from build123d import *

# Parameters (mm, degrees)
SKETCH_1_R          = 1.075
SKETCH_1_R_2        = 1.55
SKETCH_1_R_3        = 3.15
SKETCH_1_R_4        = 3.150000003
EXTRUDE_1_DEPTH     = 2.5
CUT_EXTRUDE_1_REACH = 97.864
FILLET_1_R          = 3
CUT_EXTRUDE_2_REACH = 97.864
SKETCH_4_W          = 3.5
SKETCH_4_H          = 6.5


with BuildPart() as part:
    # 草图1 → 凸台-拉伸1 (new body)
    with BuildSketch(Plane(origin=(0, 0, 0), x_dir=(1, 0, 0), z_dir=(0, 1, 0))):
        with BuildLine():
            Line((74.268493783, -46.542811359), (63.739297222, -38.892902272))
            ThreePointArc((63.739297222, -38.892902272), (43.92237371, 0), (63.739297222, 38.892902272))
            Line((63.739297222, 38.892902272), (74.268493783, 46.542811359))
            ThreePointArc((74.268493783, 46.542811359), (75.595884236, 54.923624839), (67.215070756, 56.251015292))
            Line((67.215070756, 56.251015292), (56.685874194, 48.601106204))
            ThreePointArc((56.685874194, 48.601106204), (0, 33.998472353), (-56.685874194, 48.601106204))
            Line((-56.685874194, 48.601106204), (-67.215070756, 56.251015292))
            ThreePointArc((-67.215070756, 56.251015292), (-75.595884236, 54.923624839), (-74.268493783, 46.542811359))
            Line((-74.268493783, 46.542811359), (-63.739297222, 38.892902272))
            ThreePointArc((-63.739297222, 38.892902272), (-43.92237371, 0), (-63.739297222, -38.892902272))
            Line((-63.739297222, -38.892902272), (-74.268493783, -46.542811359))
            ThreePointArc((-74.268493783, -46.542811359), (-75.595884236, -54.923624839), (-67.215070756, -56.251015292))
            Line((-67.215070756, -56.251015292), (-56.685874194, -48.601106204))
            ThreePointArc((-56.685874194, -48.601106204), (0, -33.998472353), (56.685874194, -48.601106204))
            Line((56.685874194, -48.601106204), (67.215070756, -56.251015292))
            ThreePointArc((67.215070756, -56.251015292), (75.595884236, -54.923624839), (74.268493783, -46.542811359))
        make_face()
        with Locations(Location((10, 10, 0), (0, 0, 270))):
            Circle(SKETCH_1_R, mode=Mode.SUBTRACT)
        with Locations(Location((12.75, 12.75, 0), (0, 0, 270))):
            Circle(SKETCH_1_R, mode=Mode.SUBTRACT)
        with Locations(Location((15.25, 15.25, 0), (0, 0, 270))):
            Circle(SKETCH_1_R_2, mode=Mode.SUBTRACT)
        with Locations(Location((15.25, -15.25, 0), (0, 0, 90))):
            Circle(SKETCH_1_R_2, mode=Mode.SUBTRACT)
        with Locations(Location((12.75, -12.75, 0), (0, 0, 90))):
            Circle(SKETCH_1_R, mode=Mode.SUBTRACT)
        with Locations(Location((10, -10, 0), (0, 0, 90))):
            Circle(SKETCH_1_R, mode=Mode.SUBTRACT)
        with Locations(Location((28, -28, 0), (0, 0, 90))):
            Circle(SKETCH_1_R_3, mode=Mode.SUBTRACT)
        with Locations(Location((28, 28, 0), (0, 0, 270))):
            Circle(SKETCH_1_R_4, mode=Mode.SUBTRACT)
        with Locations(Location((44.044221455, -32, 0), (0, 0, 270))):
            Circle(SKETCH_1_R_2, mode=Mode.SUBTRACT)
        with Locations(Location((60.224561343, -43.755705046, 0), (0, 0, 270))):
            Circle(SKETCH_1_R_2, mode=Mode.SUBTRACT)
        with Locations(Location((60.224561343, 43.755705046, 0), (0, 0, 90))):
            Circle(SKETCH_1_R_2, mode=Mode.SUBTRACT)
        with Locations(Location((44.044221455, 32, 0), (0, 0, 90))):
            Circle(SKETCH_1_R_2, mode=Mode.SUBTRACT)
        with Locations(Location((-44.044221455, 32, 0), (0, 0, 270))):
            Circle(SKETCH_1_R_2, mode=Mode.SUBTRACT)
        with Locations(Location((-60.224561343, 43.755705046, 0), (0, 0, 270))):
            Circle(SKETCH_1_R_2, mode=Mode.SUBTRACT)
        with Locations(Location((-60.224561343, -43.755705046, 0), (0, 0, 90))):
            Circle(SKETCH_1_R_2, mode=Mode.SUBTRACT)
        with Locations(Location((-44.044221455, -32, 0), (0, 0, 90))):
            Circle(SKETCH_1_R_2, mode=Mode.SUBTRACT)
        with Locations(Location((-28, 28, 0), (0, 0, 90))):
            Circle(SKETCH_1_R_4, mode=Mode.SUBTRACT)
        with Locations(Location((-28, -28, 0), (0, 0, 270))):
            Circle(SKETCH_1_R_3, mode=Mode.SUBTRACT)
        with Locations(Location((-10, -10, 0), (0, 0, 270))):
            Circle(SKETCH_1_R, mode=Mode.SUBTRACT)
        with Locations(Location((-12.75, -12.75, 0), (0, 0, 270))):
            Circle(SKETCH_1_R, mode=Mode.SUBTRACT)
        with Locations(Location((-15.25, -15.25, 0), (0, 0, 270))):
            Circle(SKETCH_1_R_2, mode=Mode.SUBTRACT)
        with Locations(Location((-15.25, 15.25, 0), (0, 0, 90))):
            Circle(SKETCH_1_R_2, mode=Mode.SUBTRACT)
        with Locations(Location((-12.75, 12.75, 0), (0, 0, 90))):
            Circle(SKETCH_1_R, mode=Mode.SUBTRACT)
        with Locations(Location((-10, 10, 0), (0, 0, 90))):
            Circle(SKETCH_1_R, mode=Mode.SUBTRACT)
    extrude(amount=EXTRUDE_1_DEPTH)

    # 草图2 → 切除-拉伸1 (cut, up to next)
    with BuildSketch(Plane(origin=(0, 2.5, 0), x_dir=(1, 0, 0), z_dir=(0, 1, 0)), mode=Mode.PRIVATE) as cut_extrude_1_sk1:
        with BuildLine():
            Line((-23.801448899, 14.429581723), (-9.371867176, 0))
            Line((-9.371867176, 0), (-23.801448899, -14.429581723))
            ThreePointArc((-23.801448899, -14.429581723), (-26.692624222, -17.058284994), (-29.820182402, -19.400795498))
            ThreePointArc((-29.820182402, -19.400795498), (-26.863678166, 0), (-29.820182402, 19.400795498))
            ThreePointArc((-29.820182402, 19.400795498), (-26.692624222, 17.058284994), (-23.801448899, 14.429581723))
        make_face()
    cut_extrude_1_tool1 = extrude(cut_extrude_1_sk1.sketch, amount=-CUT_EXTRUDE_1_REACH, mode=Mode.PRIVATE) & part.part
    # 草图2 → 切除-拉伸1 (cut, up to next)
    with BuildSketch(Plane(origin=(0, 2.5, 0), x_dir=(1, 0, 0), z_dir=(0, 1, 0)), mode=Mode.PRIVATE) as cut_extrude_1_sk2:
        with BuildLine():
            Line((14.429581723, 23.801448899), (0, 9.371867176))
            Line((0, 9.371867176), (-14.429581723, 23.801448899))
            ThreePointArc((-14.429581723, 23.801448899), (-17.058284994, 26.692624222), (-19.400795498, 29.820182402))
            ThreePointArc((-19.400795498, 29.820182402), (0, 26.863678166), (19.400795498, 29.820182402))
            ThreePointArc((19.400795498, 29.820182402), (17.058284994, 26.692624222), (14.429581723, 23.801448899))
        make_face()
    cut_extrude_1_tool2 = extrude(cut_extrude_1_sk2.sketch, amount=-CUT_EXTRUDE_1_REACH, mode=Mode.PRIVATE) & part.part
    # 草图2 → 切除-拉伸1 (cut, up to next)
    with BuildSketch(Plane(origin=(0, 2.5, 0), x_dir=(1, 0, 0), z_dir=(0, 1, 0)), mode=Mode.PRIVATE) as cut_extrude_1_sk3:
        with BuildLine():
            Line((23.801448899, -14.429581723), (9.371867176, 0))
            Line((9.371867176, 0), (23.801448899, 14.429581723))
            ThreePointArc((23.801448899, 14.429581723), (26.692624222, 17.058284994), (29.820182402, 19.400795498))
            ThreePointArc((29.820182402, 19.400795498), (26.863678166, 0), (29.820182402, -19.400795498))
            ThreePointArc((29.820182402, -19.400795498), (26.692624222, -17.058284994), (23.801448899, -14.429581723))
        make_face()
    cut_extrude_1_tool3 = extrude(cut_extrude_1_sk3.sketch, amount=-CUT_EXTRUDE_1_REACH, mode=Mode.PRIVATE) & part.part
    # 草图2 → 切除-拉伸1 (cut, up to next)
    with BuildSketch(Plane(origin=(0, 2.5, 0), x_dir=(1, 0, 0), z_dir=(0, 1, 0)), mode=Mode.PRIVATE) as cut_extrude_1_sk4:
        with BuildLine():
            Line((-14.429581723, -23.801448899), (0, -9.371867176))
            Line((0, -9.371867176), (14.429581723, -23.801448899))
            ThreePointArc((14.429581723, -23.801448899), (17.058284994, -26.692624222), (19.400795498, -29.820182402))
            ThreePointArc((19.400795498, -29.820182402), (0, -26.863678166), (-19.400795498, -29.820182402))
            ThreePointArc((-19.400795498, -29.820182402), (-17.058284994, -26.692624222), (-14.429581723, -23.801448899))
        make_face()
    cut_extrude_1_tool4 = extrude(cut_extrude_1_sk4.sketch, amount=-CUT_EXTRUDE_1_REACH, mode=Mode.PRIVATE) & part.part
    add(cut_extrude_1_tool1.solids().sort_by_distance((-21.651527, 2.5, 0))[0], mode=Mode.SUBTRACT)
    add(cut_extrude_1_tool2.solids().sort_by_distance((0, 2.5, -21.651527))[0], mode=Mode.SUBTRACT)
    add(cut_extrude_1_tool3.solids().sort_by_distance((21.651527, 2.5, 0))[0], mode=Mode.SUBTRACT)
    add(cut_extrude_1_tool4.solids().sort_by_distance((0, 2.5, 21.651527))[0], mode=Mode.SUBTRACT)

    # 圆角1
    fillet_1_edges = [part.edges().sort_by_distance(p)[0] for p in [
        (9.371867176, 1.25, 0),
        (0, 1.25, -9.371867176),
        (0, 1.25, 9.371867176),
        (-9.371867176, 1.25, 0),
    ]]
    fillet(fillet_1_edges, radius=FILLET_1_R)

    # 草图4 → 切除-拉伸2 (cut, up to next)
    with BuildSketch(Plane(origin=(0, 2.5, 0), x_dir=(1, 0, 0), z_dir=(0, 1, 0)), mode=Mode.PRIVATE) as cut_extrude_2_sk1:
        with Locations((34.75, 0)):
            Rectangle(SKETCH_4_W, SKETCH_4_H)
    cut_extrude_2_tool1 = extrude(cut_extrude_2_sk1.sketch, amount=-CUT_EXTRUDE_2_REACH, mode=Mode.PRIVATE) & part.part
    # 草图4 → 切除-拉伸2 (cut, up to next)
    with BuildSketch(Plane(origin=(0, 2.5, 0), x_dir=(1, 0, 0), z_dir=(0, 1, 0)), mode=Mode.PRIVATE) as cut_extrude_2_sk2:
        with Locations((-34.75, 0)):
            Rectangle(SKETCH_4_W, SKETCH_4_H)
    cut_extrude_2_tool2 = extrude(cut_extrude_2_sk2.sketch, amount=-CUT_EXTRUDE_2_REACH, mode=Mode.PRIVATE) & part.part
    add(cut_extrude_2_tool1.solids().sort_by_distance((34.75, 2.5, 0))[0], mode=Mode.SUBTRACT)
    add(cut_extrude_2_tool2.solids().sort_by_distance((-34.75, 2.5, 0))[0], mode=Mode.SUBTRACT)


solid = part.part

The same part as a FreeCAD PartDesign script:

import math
import FreeCAD as App
import Part
import Sketcher

V = App.Vector
Q = App.Units.Quantity


def edges_at(feature, points):
    """Names of the edges that pass closest to the given points."""
    edges = feature.Shape.Edges
    near = lambda p: min(range(len(edges)), key=lambda i: edges[i].distToShape(Part.Vertex(*p))[0])
    return sorted({f"Edge{near(p) + 1}" for p in points})


def add_polygon(sketch, points):
    """Adds a closed chain of lines whose ends are joined by coincident constraints."""
    first, n = sketch.GeometryCount, len(points)
    for a, b in zip(points, points[1:] + points[:1]):
        sketch.addGeometry(Part.LineSegment(App.Vector(*a, 0), App.Vector(*b, 0)), False)
    for i in range(n):
        sketch.addConstraint(Sketcher.Constraint("Coincident", first + i, 2, first + (i + 1) % n, 1))

doc = App.newDocument("Part")
body = doc.addObject("PartDesign::Body", "Body")

# Sketch on XZ plane
sketch1 = body.newObject("Sketcher::SketchObject", "Sketch")
sketch1.AttachmentSupport = (doc.getObject("XZ_Plane"), [""])
sketch1.MapMode = "FlatFace"
sketch1.addGeometry(Part.LineSegment(V(74.3, 46.5, 0), V(63.7, 38.9, 0)), False)
sketch1.addGeometry(Part.ArcOfCircle(Part.Circle(V(92, 0, 0), V(0, 0, 1), 48.1), math.radians(126), math.radians(234)), False)
sketch1.addGeometry(Part.LineSegment(V(63.7, -38.9, 0), V(74.3, -46.5, 0)), False)
sketch1.addGeometry(Part.ArcOfCircle(Part.Circle(V(70.7, -51.4, 0), V(0, 0, 1), 6), math.radians(-126), math.radians(54)), False)
sketch1.addGeometry(Part.LineSegment(V(67.2, -56.3, 0), V(56.7, -48.6, 0)), False)
sketch1.addGeometry(Part.ArcOfCircle(Part.Circle(V(0, -151.3, 0), V(0, 0, 1), 117.3), math.radians(61), math.radians(119)), False)
sketch1.addGeometry(Part.LineSegment(V(-56.7, -48.6, 0), V(-67.2, -56.3, 0)), False)
sketch1.addGeometry(Part.ArcOfCircle(Part.Circle(V(-70.7, -51.4, 0), V(0, 0, 1), 6), math.radians(126), math.radians(306)), False)
sketch1.addGeometry(Part.LineSegment(V(-74.3, -46.5, 0), V(-63.7, -38.9, 0)), False)
sketch1.addGeometry(Part.ArcOfCircle(Part.Circle(V(-92, 0, 0), V(0, 0, 1), 48.1), math.radians(-54), math.radians(54)), False)
sketch1.addGeometry(Part.LineSegment(V(-63.7, 38.9, 0), V(-74.3, 46.5, 0)), False)
sketch1.addGeometry(Part.ArcOfCircle(Part.Circle(V(-70.7, 51.4, 0), V(0, 0, 1), 6), math.radians(54), math.radians(234)), False)
sketch1.addGeometry(Part.LineSegment(V(-67.2, 56.3, 0), V(-56.7, 48.6, 0)), False)
sketch1.addGeometry(Part.ArcOfCircle(Part.Circle(V(0, 151.3, 0), V(0, 0, 1), 117.3), math.radians(-119), math.radians(-61)), False)
sketch1.addGeometry(Part.LineSegment(V(56.7, 48.6, 0), V(67.2, 56.3, 0)), False)
sketch1.addGeometry(Part.ArcOfCircle(Part.Circle(V(70.7, 51.4, 0), V(0, 0, 1), 6), math.radians(-54), math.radians(126)), False)
sketch1.addGeometry(Part.Circle(V(-60.2, 43.8, 0), V(0, 0, 1), 1.6), False)
sketch1.addGeometry(Part.Circle(V(-44, 32, 0), V(0, 0, 1), 1.6), False)
sketch1.addGeometry(Part.Circle(V(-28, 28, 0), V(0, 0, 1), 3.1), False)
sketch1.addGeometry(Part.Circle(V(-15.2, 15.2, 0), V(0, 0, 1), 1.6), False)
sketch1.addGeometry(Part.Circle(V(-12.8, 12.8, 0), V(0, 0, 1), 1.1), False)
sketch1.addGeometry(Part.Circle(V(-10, 10, 0), V(0, 0, 1), 1.1), False)
sketch1.addGeometry(Part.Circle(V(28, 28, 0), V(0, 0, 1), 3.1), False)
sketch1.addGeometry(Part.Circle(V(60.2, 43.8, 0), V(0, 0, 1), 1.6), False)
sketch1.addGeometry(Part.Circle(V(44, 32, 0), V(0, 0, 1), 1.6), False)
sketch1.addGeometry(Part.Circle(V(15.2, 15.2, 0), V(0, 0, 1), 1.6), False)
sketch1.addGeometry(Part.Circle(V(12.8, 12.8, 0), V(0, 0, 1), 1.1), False)
sketch1.addGeometry(Part.Circle(V(10, 10, 0), V(0, 0, 1), 1.1), False)
sketch1.addGeometry(Part.Circle(V(-10, -10, 0), V(0, 0, 1), 1.1), False)
sketch1.addGeometry(Part.Circle(V(-12.8, -12.8, 0), V(0, 0, 1), 1.1), False)
sketch1.addGeometry(Part.Circle(V(-15.2, -15.2, 0), V(0, 0, 1), 1.6), False)
sketch1.addGeometry(Part.Circle(V(-44, -32, 0), V(0, 0, 1), 1.6), False)
sketch1.addGeometry(Part.Circle(V(-60.2, -43.8, 0), V(0, 0, 1), 1.6), False)
sketch1.addGeometry(Part.Circle(V(-28, -28, 0), V(0, 0, 1), 3.2), False)
sketch1.addGeometry(Part.Circle(V(10, -10, 0), V(0, 0, 1), 1.1), False)
sketch1.addGeometry(Part.Circle(V(12.8, -12.8, 0), V(0, 0, 1), 1.1), False)
sketch1.addGeometry(Part.Circle(V(15.2, -15.2, 0), V(0, 0, 1), 1.6), False)
sketch1.addGeometry(Part.Circle(V(28, -28, 0), V(0, 0, 1), 3.2), False)
sketch1.addGeometry(Part.Circle(V(44, -32, 0), V(0, 0, 1), 1.6), False)
sketch1.addGeometry(Part.Circle(V(60.2, -43.8, 0), V(0, 0, 1), 1.6), False)
sketch1.addConstraint(Sketcher.Constraint("Tangent", 0, 2, 1, 1))
sketch1.addConstraint(Sketcher.Constraint("Tangent", 1, 2, 2, 1))
sketch1.addConstraint(Sketcher.Constraint("Tangent", 2, 2, 3, 2))
sketch1.addConstraint(Sketcher.Constraint("Tangent", 3, 1, 4, 1))
sketch1.addConstraint(Sketcher.Constraint("Coincident", 4, 2, 5, 1))
sketch1.addConstraint(Sketcher.Constraint("Coincident", 5, 2, 6, 1))
sketch1.addConstraint(Sketcher.Constraint("Tangent", 6, 2, 7, 2))
sketch1.addConstraint(Sketcher.Constraint("Tangent", 7, 1, 8, 1))
sketch1.addConstraint(Sketcher.Constraint("Tangent", 8, 2, 9, 1))
sketch1.addConstraint(Sketcher.Constraint("Tangent", 9, 2, 10, 1))
sketch1.addConstraint(Sketcher.Constraint("Tangent", 10, 2, 11, 2))
sketch1.addConstraint(Sketcher.Constraint("Tangent", 11, 1, 12, 1))
sketch1.addConstraint(Sketcher.Constraint("Coincident", 12, 2, 13, 1))
sketch1.addConstraint(Sketcher.Constraint("Coincident", 13, 2, 14, 1))
sketch1.addConstraint(Sketcher.Constraint("Tangent", 14, 2, 15, 2))
sketch1.addConstraint(Sketcher.Constraint("Tangent", 15, 1, 0, 1))
sketch1.addConstraint(Sketcher.Constraint("Equal", 3, 7))
sketch1.addConstraint(Sketcher.Constraint("Equal", 1, 9))
sketch1.addConstraint(Sketcher.Constraint("Equal", 7, 11))
sketch1.addConstraint(Sketcher.Constraint("Equal", 5, 13))
sketch1.addConstraint(Sketcher.Constraint("Equal", 11, 15))
sketch1.addConstraint(Sketcher.Constraint("Equal", 16, 17))
sketch1.addConstraint(Sketcher.Constraint("Equal", 17, 19))
sketch1.addConstraint(Sketcher.Constraint("Equal", 20, 21))
sketch1.addConstraint(Sketcher.Constraint("Equal", 18, 22))
sketch1.addConstraint(Sketcher.Constraint("Equal", 19, 23))
sketch1.addConstraint(Sketcher.Constraint("Equal", 23, 24))
sketch1.addConstraint(Sketcher.Constraint("Equal", 24, 25))
sketch1.addConstraint(Sketcher.Constraint("Equal", 21, 26))
sketch1.addConstraint(Sketcher.Constraint("Equal", 26, 27))
sketch1.addConstraint(Sketcher.Constraint("Equal", 27, 28))
sketch1.addConstraint(Sketcher.Constraint("Equal", 28, 29))
sketch1.addConstraint(Sketcher.Constraint("Equal", 25, 30))
sketch1.addConstraint(Sketcher.Constraint("Equal", 30, 31))
sketch1.addConstraint(Sketcher.Constraint("Equal", 31, 32))
sketch1.addConstraint(Sketcher.Constraint("Equal", 22, 33))
sketch1.addConstraint(Sketcher.Constraint("Equal", 29, 34))
sketch1.addConstraint(Sketcher.Constraint("Equal", 34, 35))
sketch1.addConstraint(Sketcher.Constraint("Equal", 32, 36))
sketch1.addConstraint(Sketcher.Constraint("Equal", 33, 37))
sketch1.addConstraint(Sketcher.Constraint("Equal", 36, 38))
sketch1.addConstraint(Sketcher.Constraint("Equal", 38, 39))
sketch1.addConstraint(Sketcher.Constraint("Symmetric", 1, 3, 9, 3, -1, 1))
sketch1.addConstraint(Sketcher.Constraint("Symmetric", 3, 3, 11, 3, -1, 1))
sketch1.addConstraint(Sketcher.Constraint("Symmetric", 5, 3, 13, 3, -1, 1))
sketch1.addConstraint(Sketcher.Constraint("Symmetric", 7, 3, 15, 3, -1, 1))
sketch1.addConstraint(Sketcher.Constraint("Symmetric", 27, 3, 28, 3, -1, 1))
sketch1.addConstraint(Sketcher.Constraint("Symmetric", 26, 3, 29, 3, -1, 1))
sketch1.addConstraint(Sketcher.Constraint("Symmetric", 25, 3, 30, 3, -1, 1))
sketch1.addConstraint(Sketcher.Constraint("Symmetric", 24, 3, 31, 3, -1, 1))
sketch1.addConstraint(Sketcher.Constraint("Symmetric", 23, 3, 32, 3, -1, 1))
sketch1.addConstraint(Sketcher.Constraint("Symmetric", 22, 3, 33, 3, -1, 1))
sketch1.addConstraint(Sketcher.Constraint("Symmetric", 21, 3, 34, 3, -1, 1))
sketch1.addConstraint(Sketcher.Constraint("Symmetric", 20, 3, 35, 3, -1, 1))
sketch1.addConstraint(Sketcher.Constraint("Symmetric", 19, 3, 36, 3, -1, 1))
sketch1.addConstraint(Sketcher.Constraint("Symmetric", 18, 3, 37, 3, -1, 1))
sketch1.addConstraint(Sketcher.Constraint("Symmetric", 17, 3, 38, 3, -1, 1))
sketch1.addConstraint(Sketcher.Constraint("Symmetric", 16, 3, 39, 3, -1, 1))
sketch1.addConstraint(Sketcher.Constraint("Symmetric", 3, 3, 7, 3, -2))
sketch1.addConstraint(Sketcher.Constraint("Symmetric", 18, 3, 22, 3, -2))
sketch1.addConstraint(Sketcher.Constraint("Symmetric", 16, 3, 23, 3, -2))
sketch1.addConstraint(Sketcher.Constraint("Symmetric", 17, 3, 24, 3, -2))
sketch1.addConstraint(Sketcher.Constraint("Symmetric", 19, 3, 25, 3, -2))
sketch1.addConstraint(Sketcher.Constraint("Symmetric", 20, 3, 26, 3, -2))
sketch1.addConstraint(Sketcher.Constraint("Symmetric", 21, 3, 27, 3, -2))
sketch1.addConstraint(Sketcher.Constraint("Symmetric", 4, 2, 5, 2, -2))
sketch1.addConstraint(Sketcher.Constraint("PointOnObject", 1, 3, -1))
sketch1.addConstraint(Sketcher.Constraint("Parallel", 2, 4))
sketch1.addConstraint(Sketcher.Constraint("Parallel", 10, 12))
sketch1.addConstraint(Sketcher.Constraint("Parallel", 8, 14))
sketch1.addConstraint(Sketcher.Constraint("Equal", 2, 4))
sketch1.addConstraint(Sketcher.Constraint("Radius", 3, Q("6 mm")))
sketch1.addConstraint(Sketcher.Constraint("Diameter", 16, Q("3.1 mm")))
sketch1.addConstraint(Sketcher.Constraint("Diameter", 18, Q("6.3 mm")))
sketch1.addConstraint(Sketcher.Constraint("Diameter", 20, Q("2.15 mm")))
sketch1.addConstraint(Sketcher.Constraint("Angle", 0, Q("-144 deg")))
sketch1.addConstraint(Sketcher.Constraint("DistanceY", -1, 1, 17, 3, Q("32 mm")))
sketch1.addConstraint(Sketcher.Constraint("DistanceX", 18, 3, -1, 1, Q("28 mm")))
sketch1.addConstraint(Sketcher.Constraint("DistanceY", -1, 1, 18, 3, Q("28 mm")))
sketch1.addConstraint(Sketcher.Constraint("DistanceX", 21, 3, -1, 1, Q("10 mm")))
sketch1.addConstraint(Sketcher.Constraint("DistanceY", -1, 1, 21, 3, Q("10 mm")))
sketch1.addConstraint(Sketcher.Constraint("DistanceX", 20, 3, 25, 3, Q("28 mm")))
sketch1.addConstraint(Sketcher.Constraint("DistanceY", 29, 3, 19, 3, Q("28 mm")))
sketch1.addConstraint(Sketcher.Constraint("DistanceX", 19, 3, 20, 3, Q("2.5 mm")))
sketch1.addConstraint(Sketcher.Constraint("DistanceY", 20, 3, 19, 3, Q("2.5 mm")))
sketch1.addConstraint(Sketcher.Constraint("Radius", 1, Q("48.074271 mm")))
sketch1.addConstraint(Sketcher.Constraint("Radius", 5, Q("117.325589 mm")))
sketch1.addConstraint(Sketcher.Constraint("DistanceY", 4, 2, 39, 3, Q("4.845401 mm")))
sketch1.addConstraint(Sketcher.Constraint("DistanceY", 5, 3, -1, 1, Q("151.324062 mm")))
sketch1.addConstraint(Sketcher.Constraint("DistanceX", 16, 3, -1, 1, Q("60.224561 mm")))
sketch1.addConstraint(Sketcher.Constraint("DistanceX", 17, 3, -1, 1, Q("44.044221 mm")))
sketch1.addConstraint(Sketcher.Constraint("DistanceY", 2, 2, -1, 1, Q("46.542811 mm")))
pad1 = body.newObject("PartDesign::Pad", "Pad")
pad1.Profile = sketch1
pad1.Length = 2.5
pad1.Reversed = True

# Sketch on XZ plane
sketch2 = body.newObject("Sketcher::SketchObject", "Sketch001")
sketch2.AttachmentSupport = (doc.getObject("XZ_Plane"), [""])
sketch2.MapMode = "FlatFace"
sketch2.AttachmentOffset = App.Placement(V(0, 0, -2.5), App.Rotation())
sketch2.addGeometry(Part.LineSegment(V(-9, 0, 0), V(-24, -14, 0)), False)
sketch2.addGeometry(Part.ArcOfCircle(Part.Circle(V(-53, 15, 0), V(0, 0, 1), 41), math.radians(-55.89), math.radians(-45)), False)
sketch2.addGeometry(Part.ArcOfCircle(Part.Circle(V(-92, 0, 0), V(0, 0, 1), 65), math.radians(-17), math.radians(17)), False)
sketch2.addGeometry(Part.ArcOfCircle(Part.Circle(V(-53, -15, 0), V(0, 0, 1), 41), math.radians(45), math.radians(55.89)), False)
sketch2.addGeometry(Part.LineSegment(V(-24, 14, 0), V(-9, 0, 0)), False)
sketch2.addConstraint(Sketcher.Constraint("Tangent", 0, 2, 1, 2))
sketch2.addConstraint(Sketcher.Constraint("Coincident", 1, 1, 2, 1))
sketch2.addConstraint(Sketcher.Constraint("Coincident", 2, 2, 3, 2))
sketch2.addConstraint(Sketcher.Constraint("Tangent", 3, 1, 4, 1))
sketch2.addConstraint(Sketcher.Constraint("Coincident", 4, 2, 0, 1))
sketch2.addConstraint(Sketcher.Constraint("Equal", 1, 3))
sketch2.addConstraint(Sketcher.Constraint("Symmetric", 1, 3, 3, 3, -1))
sketch2.addConstraint(Sketcher.Constraint("PointOnObject", 2, 3, -1))
sketch2.addConstraint(Sketcher.Constraint("PointOnObject", 4, 2, -1))
sketch2.addConstraint(Sketcher.Constraint("Perpendicular", 0, 4))
sketch2.addConstraint(Sketcher.Constraint("Radius", 1, Q("41.135032 mm")))
sketch2.addConstraint(Sketcher.Constraint("Radius", 2, Q("65.132967 mm")))
sketch2.addConstraint(Sketcher.Constraint("Distance", 0, Q("20.40651 mm")))
sketch2.addConstraint(Sketcher.Constraint("DistanceX", 1, 3, -1, 1, Q("52.888309 mm")))
sketch2.addConstraint(Sketcher.Constraint("DistanceY", 1, 1, 2, 2, Q("38.801591 mm")))
pocket1 = body.newObject("PartDesign::Pocket", "Pocket")
pocket1.Profile = sketch2
pocket1.Type = "UpToFirst"
pocket1.Reversed = True

# Sketch on XZ plane
sketch3 = body.newObject("Sketcher::SketchObject", "Sketch002")
sketch3.AttachmentSupport = (doc.getObject("XZ_Plane"), [""])
sketch3.MapMode = "FlatFace"
sketch3.AttachmentOffset = App.Placement(V(0, 0, -2.5), App.Rotation())
sketch3.addGeometry(Part.LineSegment(V(0, -9, 0), V(14, -24, 0)), False)
sketch3.addGeometry(Part.ArcOfCircle(Part.Circle(V(-15, -53, 0), V(0, 0, 1), 41), math.radians(34.11), math.radians(45)), False)
sketch3.addGeometry(Part.ArcOfCircle(Part.Circle(V(0, -92, 0), V(0, 0, 1), 65), math.radians(73), math.radians(107)), False)
sketch3.addGeometry(Part.ArcOfCircle(Part.Circle(V(15, -53, 0), V(0, 0, 1), 41), math.radians(135), math.radians(145.89)), False)
sketch3.addGeometry(Part.LineSegment(V(-14, -24, 0), V(0, -9, 0)), False)
sketch3.addConstraint(Sketcher.Constraint("Tangent", 0, 2, 1, 2))
sketch3.addConstraint(Sketcher.Constraint("Coincident", 1, 1, 2, 1))
sketch3.addConstraint(Sketcher.Constraint("Coincident", 2, 2, 3, 2))
sketch3.addConstraint(Sketcher.Constraint("Tangent", 3, 1, 4, 1))
sketch3.addConstraint(Sketcher.Constraint("Coincident", 4, 2, 0, 1))
sketch3.addConstraint(Sketcher.Constraint("Equal", 1, 3))
sketch3.addConstraint(Sketcher.Constraint("Symmetric", 1, 3, 3, 3, -2))
sketch3.addConstraint(Sketcher.Constraint("PointOnObject", 2, 3, -2))
sketch3.addConstraint(Sketcher.Constraint("PointOnObject", 4, 2, -2))
sketch3.addConstraint(Sketcher.Constraint("Perpendicular", 0, 4))
sketch3.addConstraint(Sketcher.Constraint("Radius", 1, Q("41.135032 mm")))
sketch3.addConstraint(Sketcher.Constraint("Radius", 2, Q("65.132967 mm")))
sketch3.addConstraint(Sketcher.Constraint("Distance", 0, Q("20.40651 mm")))
sketch3.addConstraint(Sketcher.Constraint("DistanceY", 1, 3, -1, 1, Q("52.888309 mm")))
sketch3.addConstraint(Sketcher.Constraint("DistanceX", 2, 2, 1, 1, Q("38.801591 mm")))
pocket2 = body.newObject("PartDesign::Pocket", "Pocket001")
pocket2.Profile = sketch3
pocket2.Type = "UpToFirst"
pocket2.Reversed = True

# Sketch on XZ plane
sketch4 = body.newObject("Sketcher::SketchObject", "Sketch003")
sketch4.AttachmentSupport = (doc.getObject("XZ_Plane"), [""])
sketch4.MapMode = "FlatFace"
sketch4.AttachmentOffset = App.Placement(V(0, 0, -2.5), App.Rotation())
sketch4.addGeometry(Part.LineSegment(V(9, 0, 0), V(24, 14, 0)), False)
sketch4.addGeometry(Part.ArcOfCircle(Part.Circle(V(53, -15, 0), V(0, 0, 1), 41), math.radians(124.11), math.radians(135)), False)
sketch4.addGeometry(Part.ArcOfCircle(Part.Circle(V(92, 0, 0), V(0, 0, 1), 65), math.radians(163), math.radians(197)), False)
sketch4.addGeometry(Part.ArcOfCircle(Part.Circle(V(53, 15, 0), V(0, 0, 1), 41), math.radians(-135), math.radians(-124.11)), False)
sketch4.addGeometry(Part.LineSegment(V(24, -14, 0), V(9, 0, 0)), False)
sketch4.addConstraint(Sketcher.Constraint("Tangent", 0, 2, 1, 2))
sketch4.addConstraint(Sketcher.Constraint("Coincident", 1, 1, 2, 1))
sketch4.addConstraint(Sketcher.Constraint("Coincident", 2, 2, 3, 2))
sketch4.addConstraint(Sketcher.Constraint("Tangent", 3, 1, 4, 1))
sketch4.addConstraint(Sketcher.Constraint("Coincident", 4, 2, 0, 1))
sketch4.addConstraint(Sketcher.Constraint("Equal", 1, 3))
sketch4.addConstraint(Sketcher.Constraint("Symmetric", 1, 3, 3, 3, -1))
sketch4.addConstraint(Sketcher.Constraint("PointOnObject", 2, 3, -1))
sketch4.addConstraint(Sketcher.Constraint("PointOnObject", 4, 2, -1))
sketch4.addConstraint(Sketcher.Constraint("Perpendicular", 0, 4))
sketch4.addConstraint(Sketcher.Constraint("Radius", 1, Q("41.135032 mm")))
sketch4.addConstraint(Sketcher.Constraint("Radius", 2, Q("65.132967 mm")))
sketch4.addConstraint(Sketcher.Constraint("Distance", 0, Q("20.40651 mm")))
sketch4.addConstraint(Sketcher.Constraint("DistanceX", -1, 1, 1, 3, Q("52.888309 mm")))
sketch4.addConstraint(Sketcher.Constraint("DistanceY", 2, 2, 1, 1, Q("38.801591 mm")))
pocket3 = body.newObject("PartDesign::Pocket", "Pocket002")
pocket3.Profile = sketch4
pocket3.Type = "UpToFirst"
pocket3.Reversed = True

# Sketch on XZ plane
sketch5 = body.newObject("Sketcher::SketchObject", "Sketch004")
sketch5.AttachmentSupport = (doc.getObject("XZ_Plane"), [""])
sketch5.MapMode = "FlatFace"
sketch5.AttachmentOffset = App.Placement(V(0, 0, -2.5), App.Rotation())
sketch5.addGeometry(Part.LineSegment(V(0, 9, 0), V(-14, 24, 0)), False)
sketch5.addGeometry(Part.ArcOfCircle(Part.Circle(V(15, 53, 0), V(0, 0, 1), 41), math.radians(-145.89), math.radians(-135)), False)
sketch5.addGeometry(Part.ArcOfCircle(Part.Circle(V(0, 92, 0), V(0, 0, 1), 65), math.radians(-107), math.radians(-73)), False)
sketch5.addGeometry(Part.ArcOfCircle(Part.Circle(V(-15, 53, 0), V(0, 0, 1), 41), math.radians(-45), math.radians(-34.11)), False)
sketch5.addGeometry(Part.LineSegment(V(14, 24, 0), V(0, 9, 0)), False)
sketch5.addConstraint(Sketcher.Constraint("Tangent", 0, 2, 1, 2))
sketch5.addConstraint(Sketcher.Constraint("Coincident", 1, 1, 2, 1))
sketch5.addConstraint(Sketcher.Constraint("Coincident", 2, 2, 3, 2))
sketch5.addConstraint(Sketcher.Constraint("Tangent", 3, 1, 4, 1))
sketch5.addConstraint(Sketcher.Constraint("Coincident", 4, 2, 0, 1))
sketch5.addConstraint(Sketcher.Constraint("Equal", 1, 3))
sketch5.addConstraint(Sketcher.Constraint("Symmetric", 1, 3, 3, 3, -2))
sketch5.addConstraint(Sketcher.Constraint("PointOnObject", 2, 3, -2))
sketch5.addConstraint(Sketcher.Constraint("PointOnObject", 4, 2, -2))
sketch5.addConstraint(Sketcher.Constraint("Perpendicular", 0, 4))
sketch5.addConstraint(Sketcher.Constraint("Radius", 1, Q("41.135032 mm")))
sketch5.addConstraint(Sketcher.Constraint("Radius", 2, Q("65.132967 mm")))
sketch5.addConstraint(Sketcher.Constraint("Distance", 0, Q("20.40651 mm")))
sketch5.addConstraint(Sketcher.Constraint("DistanceY", -1, 1, 1, 3, Q("52.888309 mm")))
sketch5.addConstraint(Sketcher.Constraint("DistanceX", 1, 1, 2, 2, Q("38.801591 mm")))
pocket4 = body.newObject("PartDesign::Pocket", "Pocket003")
pocket4.Profile = sketch5
pocket4.Type = "UpToFirst"
pocket4.Reversed = True
doc.recompute()

fillet = body.newObject("PartDesign::Fillet", "Fillet")
fillet.Base = (pocket4, edges_at(pocket4, [
    (9.372, 1.25, 0),
    (0, 1.25, -9.372),
    (0, 1.25, 9.372),
    (-9.372, 1.25, 0),
]))
fillet.Radius = 3

# Sketch on XZ plane
sketch6 = body.newObject("Sketcher::SketchObject", "Sketch005")
sketch6.AttachmentSupport = (doc.getObject("XZ_Plane"), [""])
sketch6.MapMode = "FlatFace"
sketch6.AttachmentOffset = App.Placement(V(0, 0, -2.5), App.Rotation())
add_polygon(sketch6, [(33, -3.2), (33, 3.2), (36.5, 3.2), (36.5, -3.2)])  # lines 0-3
sketch6.addConstraint(Sketcher.Constraint("Vertical", 0))
sketch6.addConstraint(Sketcher.Constraint("Horizontal", 1))
sketch6.addConstraint(Sketcher.Constraint("Vertical", 2))
sketch6.addConstraint(Sketcher.Constraint("Horizontal", 3))
sketch6.addConstraint(Sketcher.Constraint("DistanceX", 1, 1, 1, 2, Q("3.5 mm")))
sketch6.addConstraint(Sketcher.Constraint("DistanceY", 0, 1, 0, 2, Q("6.5 mm")))
sketch6.addConstraint(Sketcher.Constraint("DistanceX", -1, 1, 0, 2, Q("33 mm")))
sketch6.addConstraint(Sketcher.Constraint("DistanceY", -1, 1, 0, 2, Q("3.25 mm")))
pocket5 = body.newObject("PartDesign::Pocket", "Pocket004")
pocket5.Profile = sketch6
pocket5.Type = "UpToFirst"
pocket5.Reversed = True

# Sketch on XZ plane
sketch7 = body.newObject("Sketcher::SketchObject", "Sketch006")
sketch7.AttachmentSupport = (doc.getObject("XZ_Plane"), [""])
sketch7.MapMode = "FlatFace"
sketch7.AttachmentOffset = App.Placement(V(0, 0, -2.5), App.Rotation())
add_polygon(sketch7, [(-36.5, -3.2), (-36.5, 3.2), (-33, 3.2), (-33, -3.2)])  # lines 0-3
sketch7.addConstraint(Sketcher.Constraint("Vertical", 0))
sketch7.addConstraint(Sketcher.Constraint("Horizontal", 1))
sketch7.addConstraint(Sketcher.Constraint("Vertical", 2))
sketch7.addConstraint(Sketcher.Constraint("Horizontal", 3))
sketch7.addConstraint(Sketcher.Constraint("DistanceX", 1, 1, 1, 2, Q("3.5 mm")))
sketch7.addConstraint(Sketcher.Constraint("DistanceY", 0, 1, 0, 2, Q("6.5 mm")))
sketch7.addConstraint(Sketcher.Constraint("DistanceX", 1, 2, -1, 1, Q("33 mm")))
sketch7.addConstraint(Sketcher.Constraint("DistanceY", -1, 1, 0, 2, Q("3.25 mm")))
pocket6 = body.newObject("PartDesign::Pocket", "Pocket005")
pocket6.Profile = sketch7
pocket6.Type = "UpToFirst"
pocket6.Reversed = True

doc.recompute()
